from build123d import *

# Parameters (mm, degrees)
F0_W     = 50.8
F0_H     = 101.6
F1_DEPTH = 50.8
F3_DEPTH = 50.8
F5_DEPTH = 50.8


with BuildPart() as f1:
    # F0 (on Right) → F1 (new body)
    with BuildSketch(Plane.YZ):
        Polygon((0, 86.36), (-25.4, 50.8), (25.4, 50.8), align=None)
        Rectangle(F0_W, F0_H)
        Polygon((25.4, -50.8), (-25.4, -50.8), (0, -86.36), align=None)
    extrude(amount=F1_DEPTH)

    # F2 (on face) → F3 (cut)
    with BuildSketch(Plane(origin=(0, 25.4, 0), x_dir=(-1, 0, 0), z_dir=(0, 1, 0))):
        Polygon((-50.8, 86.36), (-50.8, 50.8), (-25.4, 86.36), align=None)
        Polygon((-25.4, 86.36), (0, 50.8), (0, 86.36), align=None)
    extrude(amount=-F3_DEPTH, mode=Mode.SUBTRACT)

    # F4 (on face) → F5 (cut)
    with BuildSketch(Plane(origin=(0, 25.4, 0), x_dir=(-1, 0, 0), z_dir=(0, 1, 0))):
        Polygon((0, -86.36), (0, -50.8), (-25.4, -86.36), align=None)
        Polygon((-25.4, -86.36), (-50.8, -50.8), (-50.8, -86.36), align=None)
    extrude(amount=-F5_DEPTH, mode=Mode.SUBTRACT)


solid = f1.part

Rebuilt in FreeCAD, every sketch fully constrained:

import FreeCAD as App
import Part
import Sketcher
Q = App.Units.Quantity

doc = App.newDocument("Part")
body = doc.addObject("PartDesign::Body", "Body")

# Sketch on YZ plane
sketch1 = body.newObject("Sketcher::SketchObject", "Sketch")
sketch1.AttachmentSupport = (doc.getObject("YZ_Plane"), [""])
sketch1.MapMode = "FlatFace"
sketch1.addGeometry(Part.LineSegment(App.Vector(0, 86, 0), App.Vector(-25, 51, 0)), False)
sketch1.addGeometry(Part.LineSegment(App.Vector(-25, 51, 0), App.Vector(-25, -51, 0)), False)
sketch1.addGeometry(Part.LineSegment(App.Vector(-25, -51, 0), App.Vector(0, -86, 0)), False)
sketch1.addGeometry(Part.LineSegment(App.Vector(0, -86, 0), App.Vector(25, -51, 0)), False)
sketch1.addGeometry(Part.LineSegment(App.Vector(25, -51, 0), App.Vector(25, 51, 0)), False)
sketch1.addGeometry(Part.LineSegment(App.Vector(25, 51, 0), App.Vector(0, 86, 0)), False)
sketch1.addConstraint(Sketcher.Constraint("Coincident", 0, 2, 1, 1))
sketch1.addConstraint(Sketcher.Constraint("Coincident", 1, 2, 2, 1))
sketch1.addConstraint(Sketcher.Constraint("Coincident", 2, 2, 3, 1))
sketch1.addConstraint(Sketcher.Constraint("Coincident", 3, 2, 4, 1))
sketch1.addConstraint(Sketcher.Constraint("Coincident", 4, 2, 5, 1))
sketch1.addConstraint(Sketcher.Constraint("Coincident", 5, 2, 0, 1))
sketch1.addConstraint(Sketcher.Constraint("Vertical", 1))
sketch1.addConstraint(Sketcher.Constraint("Vertical", 4))
sketch1.addConstraint(Sketcher.Constraint("Symmetric", 0, 2, 3, 2, -1, 1))
sketch1.addConstraint(Sketcher.Constraint("Symmetric", 2, 2, 5, 2, -1, 1))
sketch1.addConstraint(Sketcher.Constraint("PointOnObject", 2, 2, -2))
sketch1.addConstraint(Sketcher.Constraint("Parallel", 2, 5))
sketch1.addConstraint(Sketcher.Constraint("Horizontal", 1, 2, 3, 2))
sketch1.addConstraint(Sketcher.Constraint("DistanceY", 1, 2, 1, 1, Q("4 in")))
sketch1.addConstraint(Sketcher.Constraint("DistanceX", 0, 2, -1, 1, Q("1 in")))
sketch1.addConstraint(Sketcher.Constraint("DistanceY", 2, 2, -1, 1, Q("3.4 in")))
pad1 = body.newObject("PartDesign::Pad", "Pad")
pad1.Profile = sketch1
pad1.Length = Q("2 in")

# Sketch on XZ plane
sketch2 = body.newObject("Sketcher::SketchObject", "Sketch001")
sketch2.AttachmentSupport = (doc.getObject("XZ_Plane"), [""])
sketch2.MapMode = "FlatFace"
sketch2.AttachmentOffset = App.Placement(App.Vector(0, 0, -1 * 25.4), App.Rotation())
sketch2.addGeometry(Part.LineSegment(App.Vector(51, 86, 0), App.Vector(51, 51, 0)), False)
sketch2.addGeometry(Part.LineSegment(App.Vector(51, 51, 0), App.Vector(25, 86, 0)), False)
sketch2.addGeometry(Part.LineSegment(App.Vector(25, 86, 0), App.Vector(51, 86, 0)), False)
sketch2.addGeometry(Part.LineSegment(App.Vector(25, 86, 0), App.Vector(0, 51, 0)), False)
sketch2.addGeometry(Part.LineSegment(App.Vector(0, 51, 0), App.Vector(0, 86, 0)), False)
sketch2.addGeometry(Part.LineSegment(App.Vector(0, 86, 0), App.Vector(25, 86, 0)), False)
sketch2.addConstraint(Sketcher.Constraint("Coincident", 0, 2, 1, 1))
sketch2.addConstraint(Sketcher.Constraint("Coincident", 1, 2, 2, 1))
sketch2.addConstraint(Sketcher.Constraint("Coincident", 2, 2, 0, 1))
sketch2.addConstraint(Sketcher.Constraint("Coincident", 3, 2, 4, 1))
sketch2.addConstraint(Sketcher.Constraint("Coincident", 4, 2, 5, 1))
sketch2.addConstraint(Sketcher.Constraint("Coincident", 5, 2, 3, 1))
sketch2.addConstraint(Sketcher.Constraint("Vertical", 0))
sketch2.addConstraint(Sketcher.Constraint("Horizontal", 2))
sketch2.addConstraint(Sketcher.Constraint("Vertical", 4))
sketch2.addConstraint(Sketcher.Constraint("Horizontal", 5))
sketch2.addConstraint(Sketcher.Constraint("Coincident", 5, 2, 1, 2))
sketch2.addConstraint(Sketcher.Constraint("PointOnObject", 3, 2, -2))
sketch2.addConstraint(Sketcher.Constraint("Horizontal", 0, 2, 3, 2))
sketch2.addConstraint(Sketcher.Constraint("Equal", 2, 5))
sketch2.addConstraint(Sketcher.Constraint("DistanceX", 2, 1, 2, 2, Q("1 in")))
sketch2.addConstraint(Sketcher.Constraint("DistanceY", 0, 2, 0, 1, Q("1.4 in")))
sketch2.addConstraint(Sketcher.Constraint("DistanceY", -1, 1, 0, 2, Q("2 in")))
pocket1 = body.newObject("PartDesign::Pocket", "Pocket")
pocket1.Profile = sketch2
pocket1.Length = Q("2 in")
pocket1.Reversed = True

# Sketch on XZ plane
sketch3 = body.newObject("Sketcher::SketchObject", "Sketch002")
sketch3.AttachmentSupport = (doc.getObject("XZ_Plane"), [""])
sketch3.MapMode = "FlatFace"
sketch3.AttachmentOffset = App.Placement(App.Vector(0, 0, -1 * 25.4), App.Rotation())
sketch3.addGeometry(Part.LineSegment(App.Vector(0, -86, 0), App.Vector(0, -51, 0)), False)
sketch3.addGeometry(Part.LineSegment(App.Vector(0, -51, 0), App.Vector(25, -86, 0)), False)
sketch3.addGeometry(Part.LineSegment(App.Vector(25, -86, 0), App.Vector(0, -86, 0)), False)
sketch3.addGeometry(Part.LineSegment(App.Vector(25, -86, 0), App.Vector(51, -51, 0)), False)
sketch3.addGeometry(Part.LineSegment(App.Vector(51, -51, 0), App.Vector(51, -86, 0)), False)
sketch3.addGeometry(Part.LineSegment(App.Vector(51, -86, 0), App.Vector(25, -86, 0)), False)
sketch3.addConstraint(Sketcher.Constraint("Coincident", 0, 2, 1, 1))
sketch3.addConstraint(Sketcher.Constraint("Coincident", 1, 2, 2, 1))
sketch3.addConstraint(Sketcher.Constraint("Coincident", 2, 2, 0, 1))
sketch3.addConstraint(Sketcher.Constraint("Coincident", 3, 2, 4, 1))
sketch3.addConstraint(Sketcher.Constraint("Coincident", 4, 2, 5, 1))
sketch3.addConstraint(Sketcher.Constraint("Coincident", 5, 2, 3, 1))
sketch3.addConstraint(Sketcher.Constraint("Vertical", 0))
sketch3.addConstraint(Sketcher.Constraint("Horizontal", 2))
sketch3.addConstraint(Sketcher.Constraint("Vertical", 4))
sketch3.addConstraint(Sketcher.Constraint("Horizontal", 5))
sketch3.addConstraint(Sketcher.Constraint("Coincident", 5, 2, 1, 2))
sketch3.addConstraint(Sketcher.Constraint("PointOnObject", 0, 2, -2))
sketch3.addConstraint(Sketcher.Constraint("Horizontal", 0, 2, 3, 2))
sketch3.addConstraint(Sketcher.Constraint("Equal", 2, 5))
sketch3.addConstraint(Sketcher.Constraint("DistanceX", 2, 2, 2, 1, Q("1 in")))
sketch3.addConstraint(Sketcher.Constraint("DistanceY", 0, 1, 0, 2, Q("1.4 in")))
sketch3.addConstraint(Sketcher.Constraint("DistanceY", 0, 2, -1, 1, Q("2 in")))
pocket2 = body.newObject("PartDesign::Pocket", "Pocket001")
pocket2.Profile = sketch3
pocket2.Length = Q("2 in")
pocket2.Reversed = True

doc.recompute()
